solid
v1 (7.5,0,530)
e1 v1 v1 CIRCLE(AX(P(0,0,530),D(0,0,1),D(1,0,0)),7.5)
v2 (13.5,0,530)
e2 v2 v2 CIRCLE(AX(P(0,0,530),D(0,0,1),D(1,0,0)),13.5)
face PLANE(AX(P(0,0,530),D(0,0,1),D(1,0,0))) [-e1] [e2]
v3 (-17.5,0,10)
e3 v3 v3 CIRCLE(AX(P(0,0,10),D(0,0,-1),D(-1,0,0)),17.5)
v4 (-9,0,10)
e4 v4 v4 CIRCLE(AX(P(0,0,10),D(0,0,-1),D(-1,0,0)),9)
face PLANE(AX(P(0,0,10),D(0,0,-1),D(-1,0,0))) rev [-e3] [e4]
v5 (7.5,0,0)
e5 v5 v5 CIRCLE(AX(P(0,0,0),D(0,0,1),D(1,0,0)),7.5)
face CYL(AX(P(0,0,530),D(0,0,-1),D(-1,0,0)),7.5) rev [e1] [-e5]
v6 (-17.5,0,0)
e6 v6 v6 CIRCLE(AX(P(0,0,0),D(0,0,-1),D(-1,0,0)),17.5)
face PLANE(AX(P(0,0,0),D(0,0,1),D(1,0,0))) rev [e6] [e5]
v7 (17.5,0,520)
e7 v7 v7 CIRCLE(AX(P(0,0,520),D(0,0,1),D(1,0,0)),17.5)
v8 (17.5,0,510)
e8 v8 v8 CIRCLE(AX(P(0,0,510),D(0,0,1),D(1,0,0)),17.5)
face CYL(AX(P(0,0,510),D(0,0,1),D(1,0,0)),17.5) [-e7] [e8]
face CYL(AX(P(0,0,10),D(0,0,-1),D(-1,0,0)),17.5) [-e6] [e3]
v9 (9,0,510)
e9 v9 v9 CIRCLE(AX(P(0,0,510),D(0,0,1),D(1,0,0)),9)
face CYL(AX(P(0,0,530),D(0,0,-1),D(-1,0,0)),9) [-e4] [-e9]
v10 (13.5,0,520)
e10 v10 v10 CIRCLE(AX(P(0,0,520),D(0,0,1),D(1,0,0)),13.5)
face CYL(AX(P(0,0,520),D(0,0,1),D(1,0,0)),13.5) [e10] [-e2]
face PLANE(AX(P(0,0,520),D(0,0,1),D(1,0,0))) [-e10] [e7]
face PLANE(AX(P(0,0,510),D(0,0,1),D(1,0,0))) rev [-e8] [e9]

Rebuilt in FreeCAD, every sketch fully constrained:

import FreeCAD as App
import Part
import Sketcher
Q = App.Units.Quantity

doc = App.newDocument("Part")
body = doc.addObject("PartDesign::Body", "Body")

# Sketch on XY plane
sketch1 = body.newObject("Sketcher::SketchObject", "Sketch")
sketch1.AttachmentSupport = (doc.getObject("XY_Plane"), [""])
sketch1.MapMode = "FlatFace"
sketch1.addGeometry([
    Part.Circle(App.Vector(0, 0, 0), App.Vector(0, 0, 1), 9),
    Part.Circle(App.Vector(0, 0, 0), App.Vector(0, 0, 1), 7.5),
], False)
sketch1.addConstraint([
    Sketcher.Constraint("Coincident", 0, 3, -1, 1),
    Sketcher.Constraint("Coincident", 1, 3, -1, 1),
    Sketcher.Constraint("Diameter", 0, Q("18 mm")),
    Sketcher.Constraint("Diameter", 1, Q("15 mm")),
])
pad1 = body.newObject("PartDesign::Pad", "Pad")
pad1.Profile = sketch1
pad1.Length = 530

# Sketch on XY plane
sketch2 = body.newObject("Sketcher::SketchObject", "Sketch001")
sketch2.AttachmentSupport = (doc.getObject("XY_Plane"), [""])
sketch2.MapMode = "FlatFace"
sketch2.addGeometry([
    Part.Circle(App.Vector(0, 0, 0), App.Vector(0, 0, 1), 17.5),
    Part.Circle(App.Vector(0, 0, 0), App.Vector(0, 0, 1), 7.5),
], False)
sketch2.addConstraint([
    Sketcher.Constraint("Coincident", 0, 3, -1, 1),
    Sketcher.Constraint("Coincident", 1, 3, -1, 1),
    Sketcher.Constraint("Diameter", 0, Q("35 mm")),
    Sketcher.Constraint("Diameter", 1, Q("15 mm")),
])
pad2 = body.newObject("PartDesign::Pad", "Pad001")
pad2.Profile = sketch2
pad2.Length = 10

# Sketch on XY plane
sketch3 = body.newObject("Sketcher::SketchObject", "Sketch002")
sketch3.AttachmentSupport = (doc.getObject("XY_Plane"), [""])
sketch3.MapMode = "FlatFace"
sketch3.AttachmentOffset = App.Placement(App.Vector(0, 0, 510), App.Rotation())
sketch3.addGeometry([
    Part.Circle(App.Vector(0, 0, 0), App.Vector(0, 0, 1), 17.5),
    Part.Circle(App.Vector(0, 0, 0), App.Vector(0, 0, 1), 7.5),
], False)
sketch3.addConstraint([
    Sketcher.Constraint("Coincident", 0, 3, -1, 1),
    Sketcher.Constraint("Coincident", 1, 3, -1, 1),
    Sketcher.Constraint("Diameter", 0, Q("35 mm")),
    Sketcher.Constraint("Diameter", 1, Q("15 mm")),
])
pad3 = body.newObject("PartDesign::Pad", "Pad002")
pad3.Profile = sketch3
pad3.Length = 20

# Sketch on XY plane
sketch4 = body.newObject("Sketcher::SketchObject", "Sketch003")
sketch4.AttachmentSupport = (doc.getObject("XY_Plane"), [""])
sketch4.MapMode = "FlatFace"
sketch4.AttachmentOffset = App.Placement(App.Vector(0, 0, 520), App.Rotation())
sketch4.addGeometry([
    Part.Circle(App.Vector(0, 0, 0), App.Vector(0, 0, 1), 17.5),
    Part.Circle(App.Vector(0, 0, 0), App.Vector(0, 0, 1), 13.5),
], False)
sketch4.addConstraint([
    Sketcher.Constraint("Coincident", 0, 3, -1, 1),
    Sketcher.Constraint("Coincident", 1, 3, -1, 1),
    Sketcher.Constraint("Diameter", 0, Q("35 mm")),
    Sketcher.Constraint("Diameter", 1, Q("27 mm")),
])
pocket1 = body.newObject("PartDesign::Pocket", "Pocket")
pocket1.Profile = sketch4
pocket1.Length = 10
pocket1.Reversed = True

doc.recompute()
